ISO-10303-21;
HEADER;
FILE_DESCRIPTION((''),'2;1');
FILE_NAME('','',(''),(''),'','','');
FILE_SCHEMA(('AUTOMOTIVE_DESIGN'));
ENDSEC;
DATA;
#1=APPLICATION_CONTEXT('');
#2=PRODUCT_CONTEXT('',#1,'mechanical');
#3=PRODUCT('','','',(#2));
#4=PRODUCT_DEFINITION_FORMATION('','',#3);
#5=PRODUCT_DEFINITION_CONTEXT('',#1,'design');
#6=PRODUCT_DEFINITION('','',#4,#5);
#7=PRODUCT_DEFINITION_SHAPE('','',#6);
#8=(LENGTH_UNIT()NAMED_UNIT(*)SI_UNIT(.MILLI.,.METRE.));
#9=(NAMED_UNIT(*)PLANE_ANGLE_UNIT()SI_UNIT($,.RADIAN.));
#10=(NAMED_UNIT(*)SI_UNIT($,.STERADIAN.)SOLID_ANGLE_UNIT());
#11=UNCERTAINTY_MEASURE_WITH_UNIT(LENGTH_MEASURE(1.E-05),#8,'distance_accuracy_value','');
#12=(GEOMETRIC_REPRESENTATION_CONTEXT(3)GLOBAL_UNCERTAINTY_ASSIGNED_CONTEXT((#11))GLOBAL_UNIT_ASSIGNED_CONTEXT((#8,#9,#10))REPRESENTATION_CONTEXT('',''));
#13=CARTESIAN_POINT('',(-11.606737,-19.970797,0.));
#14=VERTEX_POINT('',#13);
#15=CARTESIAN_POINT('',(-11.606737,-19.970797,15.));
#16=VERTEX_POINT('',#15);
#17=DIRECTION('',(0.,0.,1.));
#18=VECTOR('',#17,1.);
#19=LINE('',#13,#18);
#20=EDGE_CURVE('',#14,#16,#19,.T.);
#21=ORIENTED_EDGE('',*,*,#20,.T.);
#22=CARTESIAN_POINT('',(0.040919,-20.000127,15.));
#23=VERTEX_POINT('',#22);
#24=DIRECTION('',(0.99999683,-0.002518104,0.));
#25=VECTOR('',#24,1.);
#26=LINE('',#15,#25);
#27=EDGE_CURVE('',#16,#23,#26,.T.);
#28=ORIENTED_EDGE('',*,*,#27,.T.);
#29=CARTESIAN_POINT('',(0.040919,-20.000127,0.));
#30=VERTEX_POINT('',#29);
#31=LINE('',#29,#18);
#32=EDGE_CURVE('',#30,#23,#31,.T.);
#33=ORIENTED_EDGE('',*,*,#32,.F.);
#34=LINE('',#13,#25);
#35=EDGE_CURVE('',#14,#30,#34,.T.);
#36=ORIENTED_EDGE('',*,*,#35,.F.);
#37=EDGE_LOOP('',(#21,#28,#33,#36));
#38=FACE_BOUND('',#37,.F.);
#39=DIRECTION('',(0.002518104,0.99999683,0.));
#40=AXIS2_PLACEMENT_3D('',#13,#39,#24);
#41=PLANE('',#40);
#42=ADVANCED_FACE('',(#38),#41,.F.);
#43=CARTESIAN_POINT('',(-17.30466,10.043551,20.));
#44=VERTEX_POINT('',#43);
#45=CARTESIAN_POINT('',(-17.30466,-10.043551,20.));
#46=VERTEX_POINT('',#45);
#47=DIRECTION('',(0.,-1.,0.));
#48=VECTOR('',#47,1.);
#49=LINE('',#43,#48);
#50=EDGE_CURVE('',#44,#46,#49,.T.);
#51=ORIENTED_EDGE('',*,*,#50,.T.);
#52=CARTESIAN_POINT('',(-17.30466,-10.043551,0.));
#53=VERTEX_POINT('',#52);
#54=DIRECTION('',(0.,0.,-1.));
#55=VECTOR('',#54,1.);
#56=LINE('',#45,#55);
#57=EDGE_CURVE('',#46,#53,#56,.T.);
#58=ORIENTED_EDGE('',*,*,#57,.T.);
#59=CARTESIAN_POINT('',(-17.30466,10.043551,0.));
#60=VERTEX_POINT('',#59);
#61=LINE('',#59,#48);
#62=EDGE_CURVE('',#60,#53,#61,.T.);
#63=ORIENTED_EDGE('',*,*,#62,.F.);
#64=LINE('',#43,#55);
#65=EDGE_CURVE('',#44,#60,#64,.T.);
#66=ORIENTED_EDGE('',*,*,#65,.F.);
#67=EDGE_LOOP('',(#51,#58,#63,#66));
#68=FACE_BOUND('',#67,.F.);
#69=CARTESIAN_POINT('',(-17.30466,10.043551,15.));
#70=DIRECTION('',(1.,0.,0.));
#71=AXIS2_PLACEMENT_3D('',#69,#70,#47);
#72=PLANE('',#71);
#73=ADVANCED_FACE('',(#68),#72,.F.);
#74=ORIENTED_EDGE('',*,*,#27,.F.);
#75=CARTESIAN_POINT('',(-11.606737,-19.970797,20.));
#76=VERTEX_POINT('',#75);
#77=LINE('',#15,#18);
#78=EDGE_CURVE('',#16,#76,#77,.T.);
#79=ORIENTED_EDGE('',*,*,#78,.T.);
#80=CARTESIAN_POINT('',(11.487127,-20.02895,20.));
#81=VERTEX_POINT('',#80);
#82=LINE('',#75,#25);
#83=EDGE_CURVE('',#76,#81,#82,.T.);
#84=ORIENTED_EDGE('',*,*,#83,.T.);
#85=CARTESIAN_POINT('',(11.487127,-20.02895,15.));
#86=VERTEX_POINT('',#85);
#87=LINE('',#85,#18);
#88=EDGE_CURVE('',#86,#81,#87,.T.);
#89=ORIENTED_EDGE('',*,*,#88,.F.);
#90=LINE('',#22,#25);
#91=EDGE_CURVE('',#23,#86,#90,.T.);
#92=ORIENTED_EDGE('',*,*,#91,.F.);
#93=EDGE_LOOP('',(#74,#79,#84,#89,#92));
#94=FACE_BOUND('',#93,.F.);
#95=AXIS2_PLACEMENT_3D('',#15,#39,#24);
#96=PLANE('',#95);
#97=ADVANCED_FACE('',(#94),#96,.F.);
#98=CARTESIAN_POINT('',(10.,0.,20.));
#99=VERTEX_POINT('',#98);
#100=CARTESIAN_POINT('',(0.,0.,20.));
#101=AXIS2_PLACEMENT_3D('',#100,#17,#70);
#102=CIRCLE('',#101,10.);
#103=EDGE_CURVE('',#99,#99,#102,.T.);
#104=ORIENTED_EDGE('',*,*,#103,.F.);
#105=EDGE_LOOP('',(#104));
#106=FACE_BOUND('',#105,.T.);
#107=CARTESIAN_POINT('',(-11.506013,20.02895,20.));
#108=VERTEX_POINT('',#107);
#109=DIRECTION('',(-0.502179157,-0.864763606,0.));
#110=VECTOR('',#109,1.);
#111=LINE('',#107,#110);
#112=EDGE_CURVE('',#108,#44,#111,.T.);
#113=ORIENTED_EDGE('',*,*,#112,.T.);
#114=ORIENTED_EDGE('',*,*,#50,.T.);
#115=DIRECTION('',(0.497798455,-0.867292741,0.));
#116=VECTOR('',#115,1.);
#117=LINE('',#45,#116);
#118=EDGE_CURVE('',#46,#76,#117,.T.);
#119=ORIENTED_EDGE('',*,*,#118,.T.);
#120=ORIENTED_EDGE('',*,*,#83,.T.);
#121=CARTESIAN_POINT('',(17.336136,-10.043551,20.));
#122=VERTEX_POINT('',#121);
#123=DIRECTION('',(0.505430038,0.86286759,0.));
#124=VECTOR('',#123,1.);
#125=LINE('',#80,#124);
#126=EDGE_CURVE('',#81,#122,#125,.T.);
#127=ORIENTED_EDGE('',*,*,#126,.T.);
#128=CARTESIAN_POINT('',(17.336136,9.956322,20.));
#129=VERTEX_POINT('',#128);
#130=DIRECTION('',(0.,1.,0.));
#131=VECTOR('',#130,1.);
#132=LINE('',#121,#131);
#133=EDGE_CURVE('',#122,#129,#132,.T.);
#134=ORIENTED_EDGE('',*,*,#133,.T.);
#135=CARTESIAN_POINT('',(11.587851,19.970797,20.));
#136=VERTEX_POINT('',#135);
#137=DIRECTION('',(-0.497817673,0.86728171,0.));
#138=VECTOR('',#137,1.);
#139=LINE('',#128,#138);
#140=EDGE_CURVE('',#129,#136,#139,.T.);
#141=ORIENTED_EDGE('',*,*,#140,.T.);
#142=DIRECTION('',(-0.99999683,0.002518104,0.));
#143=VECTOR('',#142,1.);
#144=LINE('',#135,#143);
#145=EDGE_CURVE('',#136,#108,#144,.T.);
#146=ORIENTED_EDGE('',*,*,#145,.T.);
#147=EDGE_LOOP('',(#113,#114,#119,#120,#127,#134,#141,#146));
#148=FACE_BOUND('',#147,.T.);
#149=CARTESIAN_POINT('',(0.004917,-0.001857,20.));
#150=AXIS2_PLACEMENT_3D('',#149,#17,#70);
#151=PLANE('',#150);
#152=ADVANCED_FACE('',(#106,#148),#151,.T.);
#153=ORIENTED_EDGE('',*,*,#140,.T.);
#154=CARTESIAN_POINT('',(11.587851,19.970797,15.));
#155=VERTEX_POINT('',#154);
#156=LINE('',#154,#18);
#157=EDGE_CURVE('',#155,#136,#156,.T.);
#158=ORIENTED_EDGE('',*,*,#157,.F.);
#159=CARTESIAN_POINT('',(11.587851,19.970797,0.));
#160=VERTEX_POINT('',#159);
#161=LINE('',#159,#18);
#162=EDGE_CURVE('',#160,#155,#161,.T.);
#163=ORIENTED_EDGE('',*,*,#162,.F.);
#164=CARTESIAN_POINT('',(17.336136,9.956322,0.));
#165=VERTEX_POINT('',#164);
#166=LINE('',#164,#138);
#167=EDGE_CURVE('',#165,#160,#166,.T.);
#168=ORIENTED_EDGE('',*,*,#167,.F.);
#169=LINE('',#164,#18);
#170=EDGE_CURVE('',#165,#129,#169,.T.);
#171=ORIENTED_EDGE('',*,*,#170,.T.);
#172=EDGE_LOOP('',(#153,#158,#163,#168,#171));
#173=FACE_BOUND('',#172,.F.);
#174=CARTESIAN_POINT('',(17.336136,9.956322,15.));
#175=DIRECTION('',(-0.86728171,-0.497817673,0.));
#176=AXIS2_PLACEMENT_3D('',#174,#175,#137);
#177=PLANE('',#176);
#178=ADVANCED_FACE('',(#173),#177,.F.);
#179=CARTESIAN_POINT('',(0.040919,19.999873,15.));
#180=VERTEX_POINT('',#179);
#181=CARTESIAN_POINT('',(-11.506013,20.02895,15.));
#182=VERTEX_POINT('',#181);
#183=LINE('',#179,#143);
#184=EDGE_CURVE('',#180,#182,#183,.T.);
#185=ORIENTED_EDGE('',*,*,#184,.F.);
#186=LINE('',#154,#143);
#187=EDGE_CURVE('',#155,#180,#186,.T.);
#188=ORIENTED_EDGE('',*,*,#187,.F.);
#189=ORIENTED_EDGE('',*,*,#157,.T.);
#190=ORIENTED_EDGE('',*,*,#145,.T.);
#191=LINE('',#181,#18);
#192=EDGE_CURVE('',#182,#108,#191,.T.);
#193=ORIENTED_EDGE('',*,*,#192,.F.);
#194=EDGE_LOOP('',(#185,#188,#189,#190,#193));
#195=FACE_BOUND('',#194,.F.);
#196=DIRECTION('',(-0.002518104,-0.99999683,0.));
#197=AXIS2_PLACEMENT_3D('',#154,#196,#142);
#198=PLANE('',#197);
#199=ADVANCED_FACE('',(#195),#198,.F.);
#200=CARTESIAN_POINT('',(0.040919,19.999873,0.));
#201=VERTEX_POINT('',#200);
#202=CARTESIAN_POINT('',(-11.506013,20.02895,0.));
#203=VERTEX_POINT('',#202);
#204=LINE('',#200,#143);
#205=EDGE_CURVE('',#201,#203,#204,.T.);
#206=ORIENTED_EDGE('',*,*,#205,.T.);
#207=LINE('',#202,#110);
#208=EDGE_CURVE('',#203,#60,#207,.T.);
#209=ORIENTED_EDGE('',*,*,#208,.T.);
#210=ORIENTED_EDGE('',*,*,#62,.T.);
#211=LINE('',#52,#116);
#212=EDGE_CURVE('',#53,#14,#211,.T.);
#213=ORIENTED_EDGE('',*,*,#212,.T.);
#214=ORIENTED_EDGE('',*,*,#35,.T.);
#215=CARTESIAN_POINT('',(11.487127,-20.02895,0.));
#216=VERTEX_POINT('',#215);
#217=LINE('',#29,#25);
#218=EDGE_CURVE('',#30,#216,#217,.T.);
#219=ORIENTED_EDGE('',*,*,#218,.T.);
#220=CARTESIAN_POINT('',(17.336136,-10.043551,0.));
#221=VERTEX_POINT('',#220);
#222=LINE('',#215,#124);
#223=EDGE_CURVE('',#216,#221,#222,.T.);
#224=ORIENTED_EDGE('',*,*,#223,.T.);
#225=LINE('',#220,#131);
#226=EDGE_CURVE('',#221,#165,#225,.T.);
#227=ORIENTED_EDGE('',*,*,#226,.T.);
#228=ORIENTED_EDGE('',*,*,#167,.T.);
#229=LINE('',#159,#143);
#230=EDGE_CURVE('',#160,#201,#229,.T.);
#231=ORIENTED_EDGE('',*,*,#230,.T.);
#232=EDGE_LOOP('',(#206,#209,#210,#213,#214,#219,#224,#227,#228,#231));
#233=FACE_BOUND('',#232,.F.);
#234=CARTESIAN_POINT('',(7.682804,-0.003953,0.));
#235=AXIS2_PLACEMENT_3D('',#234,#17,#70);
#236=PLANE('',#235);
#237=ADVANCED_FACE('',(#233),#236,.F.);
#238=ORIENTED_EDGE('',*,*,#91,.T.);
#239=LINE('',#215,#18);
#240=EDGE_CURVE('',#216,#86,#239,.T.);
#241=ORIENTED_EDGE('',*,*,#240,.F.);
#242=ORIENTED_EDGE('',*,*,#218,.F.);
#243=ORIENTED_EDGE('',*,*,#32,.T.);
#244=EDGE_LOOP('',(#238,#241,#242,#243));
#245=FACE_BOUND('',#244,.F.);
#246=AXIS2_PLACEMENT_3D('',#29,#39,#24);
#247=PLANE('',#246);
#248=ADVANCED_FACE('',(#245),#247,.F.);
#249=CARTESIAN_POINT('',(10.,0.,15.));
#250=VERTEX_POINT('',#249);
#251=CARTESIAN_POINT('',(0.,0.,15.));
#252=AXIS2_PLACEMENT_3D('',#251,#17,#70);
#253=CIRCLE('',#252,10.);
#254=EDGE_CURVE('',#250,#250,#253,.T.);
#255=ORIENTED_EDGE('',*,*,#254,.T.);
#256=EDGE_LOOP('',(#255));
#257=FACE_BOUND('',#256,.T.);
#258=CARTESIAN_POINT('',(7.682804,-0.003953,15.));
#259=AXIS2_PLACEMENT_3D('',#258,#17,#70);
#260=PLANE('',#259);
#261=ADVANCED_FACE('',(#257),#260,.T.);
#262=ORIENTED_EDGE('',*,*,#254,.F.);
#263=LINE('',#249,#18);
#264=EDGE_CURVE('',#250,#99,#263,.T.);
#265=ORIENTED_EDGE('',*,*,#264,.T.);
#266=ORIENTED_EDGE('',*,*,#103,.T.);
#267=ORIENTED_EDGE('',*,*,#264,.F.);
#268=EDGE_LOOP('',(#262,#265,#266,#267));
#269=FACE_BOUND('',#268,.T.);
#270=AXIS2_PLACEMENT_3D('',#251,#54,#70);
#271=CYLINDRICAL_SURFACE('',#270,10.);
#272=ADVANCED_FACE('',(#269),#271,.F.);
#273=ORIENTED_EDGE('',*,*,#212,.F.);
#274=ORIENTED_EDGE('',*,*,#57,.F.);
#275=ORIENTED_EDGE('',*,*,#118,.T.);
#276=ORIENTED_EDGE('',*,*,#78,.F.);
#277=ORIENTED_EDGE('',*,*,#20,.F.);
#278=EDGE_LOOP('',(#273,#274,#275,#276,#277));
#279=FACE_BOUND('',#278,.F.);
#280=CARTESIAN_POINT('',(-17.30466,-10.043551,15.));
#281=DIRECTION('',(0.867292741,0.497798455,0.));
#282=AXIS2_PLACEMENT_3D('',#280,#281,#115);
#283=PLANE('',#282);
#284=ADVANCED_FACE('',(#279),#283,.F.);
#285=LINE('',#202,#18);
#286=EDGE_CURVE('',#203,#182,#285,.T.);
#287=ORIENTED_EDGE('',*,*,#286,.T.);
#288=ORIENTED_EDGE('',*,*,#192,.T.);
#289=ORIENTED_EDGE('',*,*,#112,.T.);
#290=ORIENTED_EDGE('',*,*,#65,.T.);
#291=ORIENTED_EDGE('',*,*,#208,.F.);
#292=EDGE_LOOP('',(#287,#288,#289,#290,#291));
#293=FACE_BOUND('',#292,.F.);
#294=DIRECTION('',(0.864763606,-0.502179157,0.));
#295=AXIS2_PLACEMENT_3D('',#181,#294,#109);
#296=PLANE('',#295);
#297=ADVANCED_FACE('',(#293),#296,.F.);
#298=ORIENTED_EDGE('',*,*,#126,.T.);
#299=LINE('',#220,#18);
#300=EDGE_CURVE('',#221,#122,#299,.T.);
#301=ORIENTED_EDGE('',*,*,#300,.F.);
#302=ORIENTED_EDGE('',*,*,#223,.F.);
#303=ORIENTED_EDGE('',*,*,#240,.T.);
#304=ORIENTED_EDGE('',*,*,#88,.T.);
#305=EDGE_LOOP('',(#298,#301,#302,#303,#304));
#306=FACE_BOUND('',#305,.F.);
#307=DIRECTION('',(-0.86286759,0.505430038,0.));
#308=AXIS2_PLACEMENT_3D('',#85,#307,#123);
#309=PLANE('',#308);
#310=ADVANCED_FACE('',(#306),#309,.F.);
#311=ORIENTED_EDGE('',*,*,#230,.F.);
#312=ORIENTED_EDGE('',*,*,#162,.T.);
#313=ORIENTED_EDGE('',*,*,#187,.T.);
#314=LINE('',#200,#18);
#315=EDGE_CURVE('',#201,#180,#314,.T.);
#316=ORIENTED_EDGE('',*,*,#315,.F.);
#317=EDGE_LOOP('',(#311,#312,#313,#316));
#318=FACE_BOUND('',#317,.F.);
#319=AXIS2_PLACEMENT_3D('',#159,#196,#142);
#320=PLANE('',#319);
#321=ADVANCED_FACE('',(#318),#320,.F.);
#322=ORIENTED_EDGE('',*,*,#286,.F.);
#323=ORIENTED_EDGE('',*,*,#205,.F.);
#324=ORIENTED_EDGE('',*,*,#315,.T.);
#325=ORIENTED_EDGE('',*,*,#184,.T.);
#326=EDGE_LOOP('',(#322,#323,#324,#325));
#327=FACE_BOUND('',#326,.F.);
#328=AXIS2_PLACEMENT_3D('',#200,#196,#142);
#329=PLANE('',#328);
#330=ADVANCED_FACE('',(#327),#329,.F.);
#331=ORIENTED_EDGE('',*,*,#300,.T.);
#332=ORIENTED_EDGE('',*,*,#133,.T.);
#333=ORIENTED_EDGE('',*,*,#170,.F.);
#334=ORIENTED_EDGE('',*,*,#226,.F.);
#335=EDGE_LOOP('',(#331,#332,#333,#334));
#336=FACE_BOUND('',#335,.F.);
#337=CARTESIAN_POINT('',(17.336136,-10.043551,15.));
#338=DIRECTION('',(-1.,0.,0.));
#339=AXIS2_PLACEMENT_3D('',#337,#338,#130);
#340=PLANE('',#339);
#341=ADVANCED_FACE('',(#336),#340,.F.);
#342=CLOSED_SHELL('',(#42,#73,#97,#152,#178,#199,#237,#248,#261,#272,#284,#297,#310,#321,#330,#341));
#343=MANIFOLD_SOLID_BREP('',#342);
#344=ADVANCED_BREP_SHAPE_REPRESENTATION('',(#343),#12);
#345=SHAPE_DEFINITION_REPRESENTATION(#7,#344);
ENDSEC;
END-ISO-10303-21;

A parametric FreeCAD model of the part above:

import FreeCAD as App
import Part
import Sketcher


def add_polygon(sketch, points):
    """Adds a closed chain of lines whose ends are joined by coincident constraints."""
    first, n = sketch.GeometryCount, len(points)
    for a, b in zip(points, points[1:] + points[:1]):
        sketch.addGeometry(Part.LineSegment(App.Vector(*a, 0), App.Vector(*b, 0)), False)
    for i in range(n):
        sketch.addConstraint(Sketcher.Constraint("Coincident", first + i, 2, first + (i + 1) % n, 1))

doc = App.newDocument("Part")
body = doc.addObject("PartDesign::Body", "Body")

# Sketch on XY plane
sketch1 = body.newObject("Sketcher::SketchObject", "Sketch")
sketch1.AttachmentSupport = (doc.getObject("XY_Plane"), [""])
sketch1.MapMode = "FlatFace"
add_polygon(sketch1, [(0, -20), (11, -20), (17, -10), (17, 10), (12, 20), (0, 20), (-12, 20), (-17, 10), (-17, -10), (-12, -20)])  # lines 0-9
sketch1.addConstraint([
    Sketcher.Constraint("Vertical", 2),
    Sketcher.Constraint("Vertical", 7),
    Sketcher.Constraint("Parallel", 0, 4),
    Sketcher.Constraint("Parallel", 4, 5),
    Sketcher.Constraint("Parallel", 5, 9),
    Sketcher.Constraint("Horizontal", 1, 2, 7, 2),
    Sketcher.Constraint("Vertical", 4, 2, 9, 2),
    Sketcher.Constraint("Equal", 3, 4),
    Sketcher.Constraint("Equal", 4, 5),
    Sketcher.Constraint("Equal", 5, 6),
    Sketcher.Constraint("Equal", 0, 8),
    Sketcher.Constraint("DistanceY", 0, 2, 1, 2, 9.985398),
    Sketcher.Constraint("DistanceY", 1, 2, 5, 2, 30.072501),
    Sketcher.Constraint("DistanceY", 6, 2, 5, 2, 9.985398),
    Sketcher.Constraint("Distance", 1, 11.572341),
    Sketcher.Constraint("Distance", 3, 11.546969),
    Sketcher.Constraint("DistanceY", 2, 1, 2, 2, 19.999873),
    Sketcher.Constraint("DistanceY", 0, 2, -1, 1, 20.02895),
    Sketcher.Constraint("DistanceX", -1, 1, 3, 2, 11.587851),
    Sketcher.Constraint("DistanceY", 1, 2, 3, 2, 30.014348),
])
pad1 = body.newObject("PartDesign::Pad", "Pad")
pad1.Profile = sketch1
pad1.Length = 15

# Sketch on XY plane
sketch2 = body.newObject("Sketcher::SketchObject", "Sketch001")
sketch2.AttachmentSupport = (doc.getObject("XY_Plane"), [""])
sketch2.MapMode = "FlatFace"
sketch2.AttachmentOffset = App.Placement(App.Vector(0, 0, 15), App.Rotation())
add_polygon(sketch2, [(-12, -20), (11, -20), (17, -10), (17, 10), (12, 20), (-12, 20), (-17, 10), (-17, -10)])  # lines 0-7
sketch2.addGeometry(Part.Circle(App.Vector(0, 0, 0), App.Vector(0, 0, 1), 10), False)  # 8
sketch2.addConstraint([
    Sketcher.Constraint("Vertical", 2),
    Sketcher.Constraint("Vertical", 6),
    Sketcher.Constraint("Coincident", 8, 3, -1, 1),
    Sketcher.Constraint("Parallel", 0, 4),
    Sketcher.Constraint("Horizontal", 1, 2, 6, 2),
    Sketcher.Constraint("Equal", 0, 4),
    Sketcher.Constraint("Equal", 3, 5),
    Sketcher.Constraint("Diameter", 8, 20.0),
    Sketcher.Constraint("DistanceY", 0, 2, 1, 2, 9.985398),
    Sketcher.Constraint("DistanceY", 1, 2, 4, 2, 30.072501),
    Sketcher.Constraint("DistanceY", 5, 2, 4, 2, 9.985398),
    Sketcher.Constraint("Distance", 1, 11.572341),
    Sketcher.Constraint("Distance", 3, 11.546969),
    Sketcher.Constraint("DistanceY", 2, 1, 2, 2, 19.999873),
    Sketcher.Constraint("DistanceY", 0, 2, -1, 1, 20.02895),
    Sketcher.Constraint("DistanceX", -1, 1, 3, 2, 11.587851),
    Sketcher.Constraint("DistanceX", 5, 2, -1, 1, 17.30466),
    Sketcher.Constraint("DistanceY", 1, 2, 3, 2, 30.014348),
])
pad2 = body.newObject("PartDesign::Pad", "Pad001")
pad2.Profile = sketch2
pad2.Length = 5

doc.recompute()
